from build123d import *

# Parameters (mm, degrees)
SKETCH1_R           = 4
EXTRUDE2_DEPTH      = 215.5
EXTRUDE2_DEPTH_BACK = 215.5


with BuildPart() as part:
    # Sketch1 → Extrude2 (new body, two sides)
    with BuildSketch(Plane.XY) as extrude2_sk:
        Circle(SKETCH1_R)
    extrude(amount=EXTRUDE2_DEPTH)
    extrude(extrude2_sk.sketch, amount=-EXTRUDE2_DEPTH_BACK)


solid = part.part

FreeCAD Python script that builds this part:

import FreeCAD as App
import Part
import Sketcher

doc = App.newDocument("Part")
params = doc.addObject("Spreadsheet::Sheet", "Params")
for row, (alias, value) in enumerate([
    ("sketch1_diameter", "8 mm"),
    ("pad1_length", "215.5 mm"),
    ("pad1_length2", "215.5 mm"),
], start=1):
    params.set(f"A{row}", alias)
    params.set(f"B{row}", "=" + value)
    params.setAlias(f"B{row}", alias)

body = doc.addObject("PartDesign::Body", "Body")

# Sketch on XY plane
sketch1 = body.newObject("Sketcher::SketchObject", "Sketch")
sketch1.AttachmentSupport = (doc.getObject("XY_Plane"), [""])
sketch1.MapMode = "FlatFace"
sketch1.addGeometry(Part.Circle(App.Vector(0, 0, 0), App.Vector(0, 0, 1), 4), False)
sketch1.addConstraint([
    Sketcher.Constraint("Coincident", 0, 3, -1, 1),
    Sketcher.Constraint("Diameter", 0, 8.0),
])
sketch1.setExpression("Constraints[1]", "Params.sketch1_diameter")
pad1 = body.newObject("PartDesign::Pad", "Pad")
pad1.Profile = sketch1
pad1.Type = "TwoLengths"
pad1.setExpression("Length", "Params.pad1_length")
pad1.setExpression("Length2", "Params.pad1_length2")

doc.recompute()
